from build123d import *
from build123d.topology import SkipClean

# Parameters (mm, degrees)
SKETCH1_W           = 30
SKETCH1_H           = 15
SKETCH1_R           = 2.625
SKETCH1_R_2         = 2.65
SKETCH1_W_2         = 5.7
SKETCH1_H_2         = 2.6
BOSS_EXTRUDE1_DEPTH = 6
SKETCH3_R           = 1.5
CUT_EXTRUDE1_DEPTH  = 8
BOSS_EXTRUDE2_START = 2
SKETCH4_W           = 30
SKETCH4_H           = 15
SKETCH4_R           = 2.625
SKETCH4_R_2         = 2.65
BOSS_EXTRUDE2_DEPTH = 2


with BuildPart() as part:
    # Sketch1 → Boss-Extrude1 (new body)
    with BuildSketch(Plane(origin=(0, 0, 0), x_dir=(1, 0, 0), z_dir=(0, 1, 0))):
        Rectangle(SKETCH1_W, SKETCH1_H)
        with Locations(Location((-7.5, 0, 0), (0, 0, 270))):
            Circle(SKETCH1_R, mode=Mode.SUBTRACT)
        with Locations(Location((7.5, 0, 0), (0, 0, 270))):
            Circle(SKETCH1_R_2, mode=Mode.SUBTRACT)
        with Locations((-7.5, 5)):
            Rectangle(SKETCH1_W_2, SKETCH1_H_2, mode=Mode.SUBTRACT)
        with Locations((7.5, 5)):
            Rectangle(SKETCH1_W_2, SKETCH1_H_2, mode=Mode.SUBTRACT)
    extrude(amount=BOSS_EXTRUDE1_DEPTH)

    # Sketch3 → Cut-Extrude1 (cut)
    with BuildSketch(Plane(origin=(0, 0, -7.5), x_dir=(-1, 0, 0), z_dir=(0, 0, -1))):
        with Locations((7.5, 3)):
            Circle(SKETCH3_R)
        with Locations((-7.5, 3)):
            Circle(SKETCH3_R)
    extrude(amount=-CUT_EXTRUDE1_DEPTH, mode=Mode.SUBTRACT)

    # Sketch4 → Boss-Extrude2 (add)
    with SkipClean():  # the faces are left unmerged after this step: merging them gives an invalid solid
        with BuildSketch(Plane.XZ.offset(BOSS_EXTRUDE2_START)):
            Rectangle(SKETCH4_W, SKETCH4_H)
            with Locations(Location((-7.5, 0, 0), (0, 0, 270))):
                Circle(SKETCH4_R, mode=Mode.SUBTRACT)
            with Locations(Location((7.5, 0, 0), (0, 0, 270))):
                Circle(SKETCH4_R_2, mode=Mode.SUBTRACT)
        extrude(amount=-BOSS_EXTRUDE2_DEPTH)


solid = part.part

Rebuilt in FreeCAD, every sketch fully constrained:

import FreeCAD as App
import Part
import Sketcher

V = App.Vector


def add_polygon(sketch, points):
    """Adds a closed chain of lines whose ends are joined by coincident constraints."""
    first, n = sketch.GeometryCount, len(points)
    for a, b in zip(points, points[1:] + points[:1]):
        sketch.addGeometry(Part.LineSegment(App.Vector(*a, 0), App.Vector(*b, 0)), False)
    for i in range(n):
        sketch.addConstraint(Sketcher.Constraint("Coincident", first + i, 2, first + (i + 1) % n, 1))

doc = App.newDocument("Part")
params = doc.addObject("Spreadsheet::Sheet", "Params")
for row, (alias, value) in enumerate([
    ("sketch1_diameter", "5.3 mm"),
    ("sketch1_diameter2", "5.25 mm"),
    ("sketch1_width", "30 mm"),
    ("sketch1_height", "15 mm"),
    ("sketch1_width2", "5.7 mm"),
    ("pad1_length", "6 mm"),
    ("sketch2_diameter", "3 mm"),
    ("pocket1_length", "8 mm"),
    ("sketch3_diameter", "5.3 mm"),
    ("sketch3_diameter2", "5.25 mm"),
    ("sketch3_width", "30 mm"),
    ("sketch3_height", "15 mm"),
    ("pad2_length", "2 mm"),
], start=1):
    params.set(f"A{row}", alias)
    params.set(f"B{row}", "=" + value)
    params.setAlias(f"B{row}", alias)

body = doc.addObject("PartDesign::Body", "Body")

sketch1 = doc.addObject("Sketcher::SketchObject", "Sketch")
body.addObject(sketch1)
sketch1.AttachmentSupport = (doc.XZ_Plane, [""])
sketch1.MapMode = "FlatFace"
add_polygon(sketch1, [(-15, -7.5), (-15, 7.5), (15, 7.5), (15, -7.5)])
sketch1.addGeometry(Part.Circle(V(-7.5, 0, 0), V(0, 0, 1), 2.6), False)
sketch1.addGeometry(Part.Circle(V(7.5, 0, 0), V(0, 0, 1), 2.6), False)
add_polygon(sketch1, [(-4.7, -3.7), (-10.3, -3.7), (-10.3, -6.3), (-4.7, -6.3)])
add_polygon(sketch1, [(10.3, -3.7), (4.7, -3.7), (4.7, -6.3), (10.3, -6.3)])
sketch1.addConstraint(Sketcher.Constraint("Vertical", 0))
sketch1.addConstraint(Sketcher.Constraint("Horizontal", 1))
sketch1.addConstraint(Sketcher.Constraint("Vertical", 2))
sketch1.addConstraint(Sketcher.Constraint("Horizontal", 3))
sketch1.addConstraint(Sketcher.Constraint("Horizontal", 6))
sketch1.addConstraint(Sketcher.Constraint("Vertical", 7))
sketch1.addConstraint(Sketcher.Constraint("Horizontal", 8))
sketch1.addConstraint(Sketcher.Constraint("Vertical", 9))
sketch1.addConstraint(Sketcher.Constraint("Horizontal", 10))
sketch1.addConstraint(Sketcher.Constraint("Vertical", 11))
sketch1.addConstraint(Sketcher.Constraint("Horizontal", 12))
sketch1.addConstraint(Sketcher.Constraint("Vertical", 13))
sketch1.addConstraint(Sketcher.Constraint("Symmetric", 4, 3, 5, 3, -1, 1))
sketch1.addConstraint(Sketcher.Constraint("Symmetric", 0, 2, 2, 2, -1, 1))
sketch1.addConstraint(Sketcher.Constraint("Symmetric", 9, 2, 10, 2, -2))
sketch1.addConstraint(Sketcher.Constraint("Symmetric", 7, 2, 12, 2, -2))
sketch1.addConstraint(Sketcher.Constraint("PointOnObject", 4, 3, -1))
sketch1.addConstraint(Sketcher.Constraint("Diameter", 5, 5.3))
sketch1.addConstraint(Sketcher.Constraint("Diameter", 4, 5.25))
sketch1.addConstraint(Sketcher.Constraint("DistanceX", 1, 1, 1, 2, 30.0))
sketch1.addConstraint(Sketcher.Constraint("DistanceY", 0, 1, 0, 2, 15.0))
sketch1.addConstraint(Sketcher.Constraint("DistanceX", 6, 2, 6, 1, 5.7))
sketch1.addConstraint(Sketcher.Constraint("DistanceY", 7, 2, 7, 1, 2.6))
sketch1.addConstraint(Sketcher.Constraint("DistanceX", 4, 3, 5, 3, 15.0))
sketch1.addConstraint(Sketcher.Constraint("DistanceY", 6, 2, -1, 1, 3.7))
sketch1.addConstraint(Sketcher.Constraint("DistanceX", 9, 2, 10, 2, 9.3))
sketch1.setExpression("Constraints[29]", "Params.sketch1_diameter")
sketch1.setExpression("Constraints[30]", "Params.sketch1_diameter2")
sketch1.setExpression("Constraints[31]", "Params.sketch1_width")
sketch1.setExpression("Constraints[32]", "Params.sketch1_height")
sketch1.setExpression("Constraints[33]", "Params.sketch1_width2")
pad1 = doc.addObject("PartDesign::Pad", "Pad")
body.addObject(pad1)
pad1.Profile = sketch1
pad1.setExpression("Length", "Params.pad1_length")
pad1.Reversed = True

sketch2 = doc.addObject("Sketcher::SketchObject", "Sketch001")
body.addObject(sketch2)
sketch2.AttachmentSupport = (doc.XY_Plane, [""])
sketch2.MapMode = "FlatFace"
sketch2.AttachmentOffset = App.Placement(V(0, 0, -7.5), App.Rotation())
sketch2.addGeometry(Part.Circle(V(-7.5, 3, 0), V(0, 0, 1), 1.5), False)
sketch2.addGeometry(Part.Circle(V(7.5, 3, 0), V(0, 0, 1), 1.5), False)
sketch2.addConstraint(Sketcher.Constraint("Equal", 0, 1))
sketch2.addConstraint(Sketcher.Constraint("Symmetric", 0, 3, 1, 3, -2))
sketch2.addConstraint(Sketcher.Constraint("Diameter", 0, 3.0))
sketch2.addConstraint(Sketcher.Constraint("DistanceY", -1, 1, 0, 3, 3.0))
sketch2.addConstraint(Sketcher.Constraint("DistanceX", 0, 3, 1, 3, 15.0))
sketch2.setExpression("Constraints[2]", "Params.sketch2_diameter")
pocket1 = doc.addObject("PartDesign::Pocket", "Pocket")
body.addObject(pocket1)
pocket1.Profile = sketch2
pocket1.setExpression("Length", "Params.pocket1_length")
pocket1.Reversed = True

sketch3 = doc.addObject("Sketcher::SketchObject", "Sketch002")
body.addObject(sketch3)
sketch3.AttachmentSupport = (doc.XZ_Plane, [""])
sketch3.MapMode = "FlatFace"
sketch3.AttachmentOffset = App.Placement(V(0, 0, 2), App.Rotation())
add_polygon(sketch3, [(-15, 7.5), (-15, -7.5), (15, -7.5), (15, 7.5)])
sketch3.addGeometry(Part.Circle(V(-7.5, 0, 0), V(0, 0, 1), 2.6), False)
sketch3.addGeometry(Part.Circle(V(7.5, 0, 0), V(0, 0, 1), 2.6), False)
sketch3.addConstraint(Sketcher.Constraint("Vertical", 0))
sketch3.addConstraint(Sketcher.Constraint("Horizontal", 1))
sketch3.addConstraint(Sketcher.Constraint("Vertical", 2))
sketch3.addConstraint(Sketcher.Constraint("Horizontal", 3))
sketch3.addConstraint(Sketcher.Constraint("Symmetric", 4, 3, 5, 3, -1, 1))
sketch3.addConstraint(Sketcher.Constraint("Symmetric", 0, 2, 2, 2, -1, 1))
sketch3.addConstraint(Sketcher.Constraint("PointOnObject", 4, 3, -1))
sketch3.addConstraint(Sketcher.Constraint("Diameter", 5, 5.3))
sketch3.addConstraint(Sketcher.Constraint("Diameter", 4, 5.25))
sketch3.addConstraint(Sketcher.Constraint("DistanceX", 1, 1, 1, 2, 30.0))
sketch3.addConstraint(Sketcher.Constraint("DistanceY", 0, 2, 0, 1, 15.0))
sketch3.addConstraint(Sketcher.Constraint("DistanceX", 4, 3, 5, 3, 15.0))
sketch3.setExpression("Constraints[11]", "Params.sketch3_diameter")
sketch3.setExpression("Constraints[12]", "Params.sketch3_diameter2")
sketch3.setExpression("Constraints[13]", "Params.sketch3_width")
sketch3.setExpression("Constraints[14]", "Params.sketch3_height")
pad2 = doc.addObject("PartDesign::Pad", "Pad001")
body.addObject(pad2)
pad2.Profile = sketch3
pad2.setExpression("Length", "Params.pad2_length")
pad2.Reversed = True

doc.recompute()
